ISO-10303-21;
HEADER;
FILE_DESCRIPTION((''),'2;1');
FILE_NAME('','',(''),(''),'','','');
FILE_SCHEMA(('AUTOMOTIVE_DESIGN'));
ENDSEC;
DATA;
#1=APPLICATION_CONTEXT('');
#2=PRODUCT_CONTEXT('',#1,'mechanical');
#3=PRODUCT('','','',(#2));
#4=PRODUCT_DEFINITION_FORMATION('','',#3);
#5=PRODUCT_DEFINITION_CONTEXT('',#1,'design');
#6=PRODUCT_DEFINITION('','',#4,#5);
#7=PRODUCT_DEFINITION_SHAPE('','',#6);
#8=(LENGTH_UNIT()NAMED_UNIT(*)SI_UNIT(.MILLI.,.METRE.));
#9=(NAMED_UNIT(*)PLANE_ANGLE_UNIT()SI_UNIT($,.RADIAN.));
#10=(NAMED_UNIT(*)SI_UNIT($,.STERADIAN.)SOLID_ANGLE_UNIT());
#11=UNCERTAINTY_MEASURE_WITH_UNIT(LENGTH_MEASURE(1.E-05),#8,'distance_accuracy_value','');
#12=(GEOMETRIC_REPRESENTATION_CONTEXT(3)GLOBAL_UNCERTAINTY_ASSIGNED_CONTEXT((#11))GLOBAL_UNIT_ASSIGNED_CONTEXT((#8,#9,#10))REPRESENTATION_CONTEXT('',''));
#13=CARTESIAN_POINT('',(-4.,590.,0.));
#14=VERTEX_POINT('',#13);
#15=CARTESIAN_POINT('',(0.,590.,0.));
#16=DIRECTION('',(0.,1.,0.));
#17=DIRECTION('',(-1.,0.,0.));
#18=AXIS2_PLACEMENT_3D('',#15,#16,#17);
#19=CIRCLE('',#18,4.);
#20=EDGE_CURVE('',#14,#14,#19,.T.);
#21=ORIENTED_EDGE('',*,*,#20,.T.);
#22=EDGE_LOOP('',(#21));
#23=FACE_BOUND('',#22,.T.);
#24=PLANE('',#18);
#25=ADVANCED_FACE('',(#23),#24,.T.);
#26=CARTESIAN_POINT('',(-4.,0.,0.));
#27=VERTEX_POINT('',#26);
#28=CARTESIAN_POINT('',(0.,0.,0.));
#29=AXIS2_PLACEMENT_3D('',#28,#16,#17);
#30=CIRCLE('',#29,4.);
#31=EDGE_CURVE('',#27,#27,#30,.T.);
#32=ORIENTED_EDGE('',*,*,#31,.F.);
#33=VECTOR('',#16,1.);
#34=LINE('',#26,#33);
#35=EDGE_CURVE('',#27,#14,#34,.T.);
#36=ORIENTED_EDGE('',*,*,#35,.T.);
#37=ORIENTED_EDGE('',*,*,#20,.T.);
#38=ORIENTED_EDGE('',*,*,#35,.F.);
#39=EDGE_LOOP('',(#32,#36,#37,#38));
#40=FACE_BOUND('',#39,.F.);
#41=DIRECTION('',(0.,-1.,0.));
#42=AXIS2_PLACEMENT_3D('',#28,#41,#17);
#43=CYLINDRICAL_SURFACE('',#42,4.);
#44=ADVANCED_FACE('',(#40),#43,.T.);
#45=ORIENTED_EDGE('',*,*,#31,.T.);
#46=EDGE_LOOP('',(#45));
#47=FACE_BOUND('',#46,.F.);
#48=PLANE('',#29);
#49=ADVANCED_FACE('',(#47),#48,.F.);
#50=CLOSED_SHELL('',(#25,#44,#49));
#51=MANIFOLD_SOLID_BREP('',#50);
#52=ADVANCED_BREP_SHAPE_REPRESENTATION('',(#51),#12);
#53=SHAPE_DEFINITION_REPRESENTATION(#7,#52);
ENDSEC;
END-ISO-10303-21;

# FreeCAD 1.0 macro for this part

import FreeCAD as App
import Part
import Sketcher
from FreeCAD import Vector

doc = App.newDocument("Part")
body = doc.addObject("PartDesign::Body", "Body")

sketch1 = body.newObject("Sketcher::SketchObject", "Sketch")
sketch1.AttachmentSupport = (doc.getObject("XZ_Plane"), [""])
sketch1.MapMode = "FlatFace"
sketch1.addGeometry(Part.Circle(Vector(0, 0, 0), Vector(0, 0, 1), 4), False)
sketch1.addConstraint([
    Sketcher.Constraint("Coincident", 0, 3, -1, 1),
    Sketcher.Constraint("Diameter", 0, 8.0),
])
pad1 = body.newObject("PartDesign::Pad", "Pad")
pad1.Profile = sketch1
pad1.Length = 590
pad1.Reversed = True

doc.recompute()
